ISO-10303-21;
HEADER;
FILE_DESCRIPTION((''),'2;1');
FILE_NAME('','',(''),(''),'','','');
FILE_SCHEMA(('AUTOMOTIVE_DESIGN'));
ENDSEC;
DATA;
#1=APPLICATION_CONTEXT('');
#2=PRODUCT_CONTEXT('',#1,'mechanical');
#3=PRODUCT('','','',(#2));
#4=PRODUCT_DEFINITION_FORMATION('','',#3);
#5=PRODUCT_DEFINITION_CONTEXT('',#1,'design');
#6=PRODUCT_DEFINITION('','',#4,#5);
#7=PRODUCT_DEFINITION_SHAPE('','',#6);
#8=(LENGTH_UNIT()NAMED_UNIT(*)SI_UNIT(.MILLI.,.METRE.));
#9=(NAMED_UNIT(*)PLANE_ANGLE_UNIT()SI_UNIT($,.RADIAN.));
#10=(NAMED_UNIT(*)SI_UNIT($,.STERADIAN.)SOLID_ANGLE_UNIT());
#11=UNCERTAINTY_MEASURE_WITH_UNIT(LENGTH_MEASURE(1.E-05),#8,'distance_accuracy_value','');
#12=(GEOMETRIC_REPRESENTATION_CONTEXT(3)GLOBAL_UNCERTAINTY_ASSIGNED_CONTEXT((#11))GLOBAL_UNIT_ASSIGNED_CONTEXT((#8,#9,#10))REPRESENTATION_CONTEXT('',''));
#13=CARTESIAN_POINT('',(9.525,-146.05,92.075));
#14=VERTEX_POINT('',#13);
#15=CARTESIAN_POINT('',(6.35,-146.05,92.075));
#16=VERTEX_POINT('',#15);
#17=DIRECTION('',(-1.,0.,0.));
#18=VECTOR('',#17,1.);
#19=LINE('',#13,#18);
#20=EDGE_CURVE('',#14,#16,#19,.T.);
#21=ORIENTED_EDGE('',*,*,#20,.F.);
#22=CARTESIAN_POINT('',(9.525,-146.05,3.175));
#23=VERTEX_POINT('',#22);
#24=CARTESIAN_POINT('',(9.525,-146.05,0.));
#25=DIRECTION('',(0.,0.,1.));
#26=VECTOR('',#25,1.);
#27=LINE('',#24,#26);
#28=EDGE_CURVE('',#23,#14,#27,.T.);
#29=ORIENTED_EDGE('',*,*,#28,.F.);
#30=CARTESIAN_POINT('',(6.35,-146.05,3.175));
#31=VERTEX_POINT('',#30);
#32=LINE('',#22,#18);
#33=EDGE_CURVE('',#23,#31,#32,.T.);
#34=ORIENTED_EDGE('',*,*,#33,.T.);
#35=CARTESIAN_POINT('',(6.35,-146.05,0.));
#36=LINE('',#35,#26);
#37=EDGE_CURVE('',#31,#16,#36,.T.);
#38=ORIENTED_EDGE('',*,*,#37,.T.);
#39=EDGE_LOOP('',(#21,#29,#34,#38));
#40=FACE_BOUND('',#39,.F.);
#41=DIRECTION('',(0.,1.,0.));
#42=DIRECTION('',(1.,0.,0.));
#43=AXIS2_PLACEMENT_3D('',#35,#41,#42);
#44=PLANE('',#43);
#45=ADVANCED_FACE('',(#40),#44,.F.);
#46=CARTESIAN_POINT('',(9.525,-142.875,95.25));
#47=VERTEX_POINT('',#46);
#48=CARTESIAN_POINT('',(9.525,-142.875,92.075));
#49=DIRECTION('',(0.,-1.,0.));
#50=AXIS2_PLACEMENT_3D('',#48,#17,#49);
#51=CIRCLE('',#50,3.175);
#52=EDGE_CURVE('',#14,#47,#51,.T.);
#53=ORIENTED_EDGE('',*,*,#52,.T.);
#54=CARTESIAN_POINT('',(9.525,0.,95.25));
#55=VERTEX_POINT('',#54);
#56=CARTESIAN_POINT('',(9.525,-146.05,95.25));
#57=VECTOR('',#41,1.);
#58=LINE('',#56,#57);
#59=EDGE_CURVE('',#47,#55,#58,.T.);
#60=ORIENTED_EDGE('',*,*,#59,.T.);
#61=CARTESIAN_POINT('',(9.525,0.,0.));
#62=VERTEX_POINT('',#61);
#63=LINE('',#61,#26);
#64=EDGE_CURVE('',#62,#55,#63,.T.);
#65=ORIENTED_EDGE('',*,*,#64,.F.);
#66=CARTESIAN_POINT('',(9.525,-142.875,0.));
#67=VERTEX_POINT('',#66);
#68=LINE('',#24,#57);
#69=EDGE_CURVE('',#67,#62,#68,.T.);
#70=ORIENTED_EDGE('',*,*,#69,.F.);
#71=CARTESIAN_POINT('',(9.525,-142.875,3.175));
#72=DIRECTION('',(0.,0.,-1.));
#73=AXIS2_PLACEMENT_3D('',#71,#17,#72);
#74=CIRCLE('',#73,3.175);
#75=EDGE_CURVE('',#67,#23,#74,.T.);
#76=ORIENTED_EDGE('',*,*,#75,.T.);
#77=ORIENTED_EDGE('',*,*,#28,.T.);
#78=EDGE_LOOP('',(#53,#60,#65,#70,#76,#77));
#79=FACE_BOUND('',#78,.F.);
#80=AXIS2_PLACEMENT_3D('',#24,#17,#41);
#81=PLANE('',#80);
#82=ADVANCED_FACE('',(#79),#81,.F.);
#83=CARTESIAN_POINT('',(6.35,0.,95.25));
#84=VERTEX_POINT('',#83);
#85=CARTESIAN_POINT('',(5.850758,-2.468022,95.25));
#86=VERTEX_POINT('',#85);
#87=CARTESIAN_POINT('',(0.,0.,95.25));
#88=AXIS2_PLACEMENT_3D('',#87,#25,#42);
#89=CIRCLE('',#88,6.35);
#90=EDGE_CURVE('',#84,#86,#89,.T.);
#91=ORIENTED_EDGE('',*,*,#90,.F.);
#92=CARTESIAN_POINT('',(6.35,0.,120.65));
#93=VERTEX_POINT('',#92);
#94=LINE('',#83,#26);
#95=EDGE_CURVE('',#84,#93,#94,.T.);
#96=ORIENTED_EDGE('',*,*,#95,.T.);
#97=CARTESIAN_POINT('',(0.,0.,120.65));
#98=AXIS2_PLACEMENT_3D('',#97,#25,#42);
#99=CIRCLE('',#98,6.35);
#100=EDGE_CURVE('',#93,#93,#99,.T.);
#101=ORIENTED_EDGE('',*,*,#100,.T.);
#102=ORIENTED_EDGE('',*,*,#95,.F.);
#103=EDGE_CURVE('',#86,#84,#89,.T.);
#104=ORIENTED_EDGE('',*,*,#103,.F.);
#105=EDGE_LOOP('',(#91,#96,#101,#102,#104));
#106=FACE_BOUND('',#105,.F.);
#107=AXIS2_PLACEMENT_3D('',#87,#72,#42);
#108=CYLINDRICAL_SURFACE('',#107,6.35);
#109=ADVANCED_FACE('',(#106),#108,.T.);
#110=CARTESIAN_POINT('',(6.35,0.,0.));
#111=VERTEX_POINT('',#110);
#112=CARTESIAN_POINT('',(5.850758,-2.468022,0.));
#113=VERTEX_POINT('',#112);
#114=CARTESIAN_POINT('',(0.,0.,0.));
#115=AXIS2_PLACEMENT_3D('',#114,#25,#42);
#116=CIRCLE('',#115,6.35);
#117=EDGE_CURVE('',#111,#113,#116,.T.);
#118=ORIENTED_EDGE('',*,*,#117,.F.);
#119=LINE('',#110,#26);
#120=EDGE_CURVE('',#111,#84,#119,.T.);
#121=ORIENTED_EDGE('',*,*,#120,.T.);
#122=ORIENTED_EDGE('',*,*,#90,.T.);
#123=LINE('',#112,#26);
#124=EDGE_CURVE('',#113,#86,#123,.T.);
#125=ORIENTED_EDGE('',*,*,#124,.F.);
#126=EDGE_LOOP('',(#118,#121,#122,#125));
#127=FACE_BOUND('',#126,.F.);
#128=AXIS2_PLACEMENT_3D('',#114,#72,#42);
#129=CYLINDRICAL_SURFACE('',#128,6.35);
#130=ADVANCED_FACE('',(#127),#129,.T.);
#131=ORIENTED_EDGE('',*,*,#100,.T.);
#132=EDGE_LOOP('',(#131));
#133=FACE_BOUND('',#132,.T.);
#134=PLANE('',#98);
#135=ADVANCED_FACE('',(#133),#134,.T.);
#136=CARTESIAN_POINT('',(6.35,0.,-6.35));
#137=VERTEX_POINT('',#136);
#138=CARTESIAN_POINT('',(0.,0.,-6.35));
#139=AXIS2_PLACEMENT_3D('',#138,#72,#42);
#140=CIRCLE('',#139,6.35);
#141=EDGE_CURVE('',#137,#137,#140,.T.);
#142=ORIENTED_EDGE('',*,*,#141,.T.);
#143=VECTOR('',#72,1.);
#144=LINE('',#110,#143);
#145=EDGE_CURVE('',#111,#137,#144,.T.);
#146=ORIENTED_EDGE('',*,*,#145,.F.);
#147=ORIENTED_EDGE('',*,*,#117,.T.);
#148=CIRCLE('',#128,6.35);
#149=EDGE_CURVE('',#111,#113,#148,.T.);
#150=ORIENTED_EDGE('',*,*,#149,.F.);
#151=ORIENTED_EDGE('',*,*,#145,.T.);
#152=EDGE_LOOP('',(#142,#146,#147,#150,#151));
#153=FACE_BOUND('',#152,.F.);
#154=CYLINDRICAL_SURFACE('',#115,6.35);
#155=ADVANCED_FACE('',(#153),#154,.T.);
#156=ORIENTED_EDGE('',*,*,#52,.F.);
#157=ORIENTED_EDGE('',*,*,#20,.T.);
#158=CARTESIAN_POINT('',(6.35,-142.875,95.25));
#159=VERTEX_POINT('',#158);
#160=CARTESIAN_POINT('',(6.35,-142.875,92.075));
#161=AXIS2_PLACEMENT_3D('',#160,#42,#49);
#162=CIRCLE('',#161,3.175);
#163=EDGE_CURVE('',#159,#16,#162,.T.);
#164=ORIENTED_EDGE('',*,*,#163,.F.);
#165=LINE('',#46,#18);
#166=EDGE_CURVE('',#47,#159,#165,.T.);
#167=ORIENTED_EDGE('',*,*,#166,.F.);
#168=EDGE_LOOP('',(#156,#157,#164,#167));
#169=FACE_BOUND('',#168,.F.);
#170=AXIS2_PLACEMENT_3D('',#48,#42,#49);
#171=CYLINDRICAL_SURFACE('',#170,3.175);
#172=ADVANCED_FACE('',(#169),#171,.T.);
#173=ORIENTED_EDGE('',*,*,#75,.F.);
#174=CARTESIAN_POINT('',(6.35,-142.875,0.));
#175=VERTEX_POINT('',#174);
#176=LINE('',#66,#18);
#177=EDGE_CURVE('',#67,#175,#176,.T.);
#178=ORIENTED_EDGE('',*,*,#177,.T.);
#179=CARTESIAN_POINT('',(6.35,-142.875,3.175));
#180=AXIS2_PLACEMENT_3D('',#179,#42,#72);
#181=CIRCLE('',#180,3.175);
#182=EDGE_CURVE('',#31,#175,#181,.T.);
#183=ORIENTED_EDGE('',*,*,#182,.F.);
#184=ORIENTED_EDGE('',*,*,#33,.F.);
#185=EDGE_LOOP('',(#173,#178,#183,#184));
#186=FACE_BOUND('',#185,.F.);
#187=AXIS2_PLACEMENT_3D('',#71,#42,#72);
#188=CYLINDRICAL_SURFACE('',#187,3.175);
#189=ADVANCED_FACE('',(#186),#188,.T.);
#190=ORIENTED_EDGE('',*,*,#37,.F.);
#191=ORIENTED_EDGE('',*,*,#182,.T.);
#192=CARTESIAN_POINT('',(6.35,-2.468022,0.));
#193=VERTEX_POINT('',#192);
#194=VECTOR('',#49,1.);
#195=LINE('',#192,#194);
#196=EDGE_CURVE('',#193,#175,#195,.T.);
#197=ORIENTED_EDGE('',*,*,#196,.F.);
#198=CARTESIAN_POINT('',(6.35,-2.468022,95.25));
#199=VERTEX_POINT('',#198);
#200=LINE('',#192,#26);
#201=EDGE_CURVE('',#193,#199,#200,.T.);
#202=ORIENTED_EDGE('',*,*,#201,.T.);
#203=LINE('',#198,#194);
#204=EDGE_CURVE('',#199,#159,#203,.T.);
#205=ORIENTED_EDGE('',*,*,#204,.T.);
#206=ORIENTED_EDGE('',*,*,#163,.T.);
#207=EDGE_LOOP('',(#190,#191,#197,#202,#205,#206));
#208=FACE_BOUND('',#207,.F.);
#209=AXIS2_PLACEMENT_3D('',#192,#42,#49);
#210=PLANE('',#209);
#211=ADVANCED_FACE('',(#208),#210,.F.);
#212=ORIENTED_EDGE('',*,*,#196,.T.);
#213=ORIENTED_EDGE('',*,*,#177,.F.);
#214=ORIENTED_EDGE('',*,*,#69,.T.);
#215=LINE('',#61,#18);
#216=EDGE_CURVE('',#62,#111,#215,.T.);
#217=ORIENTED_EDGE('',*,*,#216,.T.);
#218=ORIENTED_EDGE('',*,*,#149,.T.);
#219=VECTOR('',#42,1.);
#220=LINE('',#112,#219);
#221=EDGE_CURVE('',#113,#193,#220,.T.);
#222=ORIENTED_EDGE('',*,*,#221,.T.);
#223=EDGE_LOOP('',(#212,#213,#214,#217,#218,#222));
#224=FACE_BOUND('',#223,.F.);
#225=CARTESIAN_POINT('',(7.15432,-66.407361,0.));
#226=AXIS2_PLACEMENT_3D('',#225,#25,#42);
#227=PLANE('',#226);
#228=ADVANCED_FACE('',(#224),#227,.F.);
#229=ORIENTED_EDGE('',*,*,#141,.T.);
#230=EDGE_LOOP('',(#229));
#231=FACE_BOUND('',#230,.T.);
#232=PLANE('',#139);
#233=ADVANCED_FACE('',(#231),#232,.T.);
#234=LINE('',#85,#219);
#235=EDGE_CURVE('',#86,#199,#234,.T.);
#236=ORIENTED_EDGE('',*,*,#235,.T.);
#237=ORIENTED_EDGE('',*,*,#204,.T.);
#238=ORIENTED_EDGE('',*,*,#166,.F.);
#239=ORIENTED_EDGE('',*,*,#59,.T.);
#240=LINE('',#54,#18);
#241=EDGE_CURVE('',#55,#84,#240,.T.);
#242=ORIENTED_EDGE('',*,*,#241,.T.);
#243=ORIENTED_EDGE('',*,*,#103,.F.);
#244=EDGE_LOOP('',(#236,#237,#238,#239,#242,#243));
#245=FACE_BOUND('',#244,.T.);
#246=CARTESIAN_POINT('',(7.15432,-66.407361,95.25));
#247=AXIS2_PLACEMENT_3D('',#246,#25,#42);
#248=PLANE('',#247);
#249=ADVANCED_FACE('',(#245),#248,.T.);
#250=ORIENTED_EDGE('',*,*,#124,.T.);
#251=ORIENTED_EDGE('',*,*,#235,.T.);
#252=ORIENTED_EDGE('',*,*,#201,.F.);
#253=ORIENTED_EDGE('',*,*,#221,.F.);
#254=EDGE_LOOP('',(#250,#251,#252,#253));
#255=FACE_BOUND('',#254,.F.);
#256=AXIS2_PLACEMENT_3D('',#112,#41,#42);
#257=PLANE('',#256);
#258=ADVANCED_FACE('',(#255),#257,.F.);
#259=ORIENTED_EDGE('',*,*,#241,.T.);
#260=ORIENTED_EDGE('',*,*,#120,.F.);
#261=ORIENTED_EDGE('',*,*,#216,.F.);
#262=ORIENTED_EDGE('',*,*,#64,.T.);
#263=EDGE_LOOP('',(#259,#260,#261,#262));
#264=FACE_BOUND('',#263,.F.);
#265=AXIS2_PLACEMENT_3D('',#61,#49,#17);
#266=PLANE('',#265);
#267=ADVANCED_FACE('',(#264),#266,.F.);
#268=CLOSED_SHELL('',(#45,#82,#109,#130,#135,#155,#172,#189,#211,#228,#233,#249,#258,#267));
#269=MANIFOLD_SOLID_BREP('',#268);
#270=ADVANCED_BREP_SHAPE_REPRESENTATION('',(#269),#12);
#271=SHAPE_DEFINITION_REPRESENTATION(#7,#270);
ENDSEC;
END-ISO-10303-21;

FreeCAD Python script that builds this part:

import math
import FreeCAD as App
import Part
import Sketcher
Q = App.Units.Quantity

doc = App.newDocument("Part")
body = doc.addObject("PartDesign::Body", "Body")

# Sketch on XY plane
sketch1 = doc.addObject("Sketcher::SketchObject", "Sketch")
body.addObject(sketch1)
sketch1.AttachmentSupport = (doc.XY_Plane, [""])
sketch1.MapMode = "FlatFace"
sketch1.addGeometry([
    Part.LineSegment(App.Vector(9.53, 0, 0), App.Vector(6.35, 0, 0)),  # 0
    Part.ArcOfCircle(Part.Circle(App.Vector(0, 0, 0), App.Vector(0, 0, 1), 6.35), math.radians(0), math.radians(337)),  # 1
    Part.LineSegment(App.Vector(5.85, -2.47, 0), App.Vector(6.35, -2.47, 0)),  # 2
    Part.LineSegment(App.Vector(6.35, -2.47, 0), App.Vector(6.35, -146.05, 0)),  # 3
    Part.LineSegment(App.Vector(6.35, -146.05, 0), App.Vector(9.53, -146.05, 0)),  # 4
    Part.LineSegment(App.Vector(9.53, -146.05, 0), App.Vector(9.53, 0, 0)),  # 5
], False)
sketch1.addConstraint([
    Sketcher.Constraint("Coincident", 0, 2, 1, 1),
    Sketcher.Constraint("Coincident", 1, 2, 2, 1),
    Sketcher.Constraint("Coincident", 2, 2, 3, 1),
    Sketcher.Constraint("Coincident", 3, 2, 4, 1),
    Sketcher.Constraint("Coincident", 4, 2, 5, 1),
    Sketcher.Constraint("Coincident", 5, 2, 0, 1),
    Sketcher.Constraint("Horizontal", 0),
    Sketcher.Constraint("Horizontal", 2),
    Sketcher.Constraint("Vertical", 3),
    Sketcher.Constraint("Horizontal", 4),
    Sketcher.Constraint("Vertical", 5),
    Sketcher.Constraint("Coincident", 1, 3, -1, 1),
    Sketcher.Constraint("PointOnObject", 0, 2, -1),
    Sketcher.Constraint("Vertical", 0, 2, 2, 2),
    Sketcher.Constraint("Radius", 1, Q("0.25 in")),
    Sketcher.Constraint("DistanceY", 5, 1, 5, 2, Q("5.75 in")),
    Sketcher.Constraint("DistanceX", 0, 2, 0, 1, Q("0.125 in")),
    Sketcher.Constraint("DistanceY", 3, 2, 3, 1, 143.581978),
])
pad1 = doc.addObject("PartDesign::Pad", "Pad")
body.addObject(pad1)
pad1.Profile = sketch1
pad1.Length = Q("3.75 in")

# Sketch on XY plane
sketch2 = doc.addObject("Sketcher::SketchObject", "Sketch001")
body.addObject(sketch2)
sketch2.AttachmentSupport = (doc.XY_Plane, [""])
sketch2.MapMode = "FlatFace"
sketch2.AttachmentOffset = App.Placement(App.Vector(0, 0, 3.75 * 25.4), App.Rotation())
sketch2.addGeometry(Part.Circle(App.Vector(0, 0, 0), App.Vector(0, 0, 1), 6), False)
sketch2.addConstraint([
    Sketcher.Constraint("Coincident", 0, 3, -1, 1),
    Sketcher.Constraint("Diameter", 0, Q("0.5 in")),
])
pad2 = doc.addObject("PartDesign::Pad", "Pad001")
body.addObject(pad2)
pad2.Profile = sketch2
pad2.Length = Q("1 in")

# Sketch on XY plane
sketch3 = doc.addObject("Sketcher::SketchObject", "Sketch002")
body.addObject(sketch3)
sketch3.AttachmentSupport = (doc.XY_Plane, [""])
sketch3.MapMode = "FlatFace"
sketch3.addGeometry(Part.Circle(App.Vector(0, 0, 0), App.Vector(0, 0, 1), 6), False)
sketch3.addConstraint([
    Sketcher.Constraint("Coincident", 0, 3, -1, 1),
    Sketcher.Constraint("Diameter", 0, Q("0.5 in")),
])
pad3 = doc.addObject("PartDesign::Pad", "Pad002")
body.addObject(pad3)
pad3.Profile = sketch3
pad3.Length = Q("0.25 in")
pad3.Reversed = True

# Sketch on YZ plane
sketch4 = doc.addObject("Sketcher::SketchObject", "Sketch003")
body.addObject(sketch4)
sketch4.AttachmentSupport = (doc.YZ_Plane, [""])
sketch4.MapMode = "FlatFace"
sketch4.AttachmentOffset = App.Placement(App.Vector(0, 0, 0.375 * 25.4), App.Rotation())
sketch4.addGeometry([
    Part.ArcOfCircle(Part.Circle(App.Vector(-142.9, 92.1, 0), App.Vector(0, 0, 1), 3.2), math.radians(90), math.radians(180)),  # 0
    Part.LineSegment(App.Vector(-142.9, 95.2, 0), App.Vector(-146.1, 95.2, 0)),  # 1
    Part.LineSegment(App.Vector(-146.1, 95.2, 0), App.Vector(-146.1, 92.1, 0)),  # 2
    Part.ArcOfCircle(Part.Circle(App.Vector(-142.9, 3.2, 0), App.Vector(0, 0, 1), 3.2), math.radians(180), math.radians(270)),  # 3
    Part.LineSegment(App.Vector(-146.1, 3.2, 0), App.Vector(-146.1, 0, 0)),  # 4
    Part.LineSegment(App.Vector(-146.1, 0, 0), App.Vector(-142.9, 0, 0)),  # 5
], False)
sketch4.addConstraint([
    Sketcher.Constraint("Tangent", 0, 1, 1, 1),
    Sketcher.Constraint("Coincident", 1, 2, 2, 1),
    Sketcher.Constraint("Tangent", 2, 2, 0, 2),
    Sketcher.Constraint("Tangent", 3, 1, 4, 1),
    Sketcher.Constraint("Coincident", 4, 2, 5, 1),
    Sketcher.Constraint("Tangent", 5, 2, 3, 2),
    Sketcher.Constraint("Horizontal", 1),
    Sketcher.Constraint("Vertical", 2),
    Sketcher.Constraint("Vertical", 4),
    Sketcher.Constraint("Horizontal", 5),
    Sketcher.Constraint("Equal", 0, 3),
    Sketcher.Constraint("PointOnObject", 4, 2, -1),
    Sketcher.Constraint("Vertical", 0, 3, 3, 3),
    Sketcher.Constraint("Radius", 0, Q("0.125 in")),
    Sketcher.Constraint("DistanceY", 3, 3, 0, 3, Q("3.5 in")),
    Sketcher.Constraint("DistanceX", 1, 2, -1, 1, Q("5.75 in")),
])
pocket1 = doc.addObject("PartDesign::Pocket", "Pocket")
body.addObject(pocket1)
pocket1.Profile = sketch4
pocket1.Length = Q("1 in")

doc.recompute()
